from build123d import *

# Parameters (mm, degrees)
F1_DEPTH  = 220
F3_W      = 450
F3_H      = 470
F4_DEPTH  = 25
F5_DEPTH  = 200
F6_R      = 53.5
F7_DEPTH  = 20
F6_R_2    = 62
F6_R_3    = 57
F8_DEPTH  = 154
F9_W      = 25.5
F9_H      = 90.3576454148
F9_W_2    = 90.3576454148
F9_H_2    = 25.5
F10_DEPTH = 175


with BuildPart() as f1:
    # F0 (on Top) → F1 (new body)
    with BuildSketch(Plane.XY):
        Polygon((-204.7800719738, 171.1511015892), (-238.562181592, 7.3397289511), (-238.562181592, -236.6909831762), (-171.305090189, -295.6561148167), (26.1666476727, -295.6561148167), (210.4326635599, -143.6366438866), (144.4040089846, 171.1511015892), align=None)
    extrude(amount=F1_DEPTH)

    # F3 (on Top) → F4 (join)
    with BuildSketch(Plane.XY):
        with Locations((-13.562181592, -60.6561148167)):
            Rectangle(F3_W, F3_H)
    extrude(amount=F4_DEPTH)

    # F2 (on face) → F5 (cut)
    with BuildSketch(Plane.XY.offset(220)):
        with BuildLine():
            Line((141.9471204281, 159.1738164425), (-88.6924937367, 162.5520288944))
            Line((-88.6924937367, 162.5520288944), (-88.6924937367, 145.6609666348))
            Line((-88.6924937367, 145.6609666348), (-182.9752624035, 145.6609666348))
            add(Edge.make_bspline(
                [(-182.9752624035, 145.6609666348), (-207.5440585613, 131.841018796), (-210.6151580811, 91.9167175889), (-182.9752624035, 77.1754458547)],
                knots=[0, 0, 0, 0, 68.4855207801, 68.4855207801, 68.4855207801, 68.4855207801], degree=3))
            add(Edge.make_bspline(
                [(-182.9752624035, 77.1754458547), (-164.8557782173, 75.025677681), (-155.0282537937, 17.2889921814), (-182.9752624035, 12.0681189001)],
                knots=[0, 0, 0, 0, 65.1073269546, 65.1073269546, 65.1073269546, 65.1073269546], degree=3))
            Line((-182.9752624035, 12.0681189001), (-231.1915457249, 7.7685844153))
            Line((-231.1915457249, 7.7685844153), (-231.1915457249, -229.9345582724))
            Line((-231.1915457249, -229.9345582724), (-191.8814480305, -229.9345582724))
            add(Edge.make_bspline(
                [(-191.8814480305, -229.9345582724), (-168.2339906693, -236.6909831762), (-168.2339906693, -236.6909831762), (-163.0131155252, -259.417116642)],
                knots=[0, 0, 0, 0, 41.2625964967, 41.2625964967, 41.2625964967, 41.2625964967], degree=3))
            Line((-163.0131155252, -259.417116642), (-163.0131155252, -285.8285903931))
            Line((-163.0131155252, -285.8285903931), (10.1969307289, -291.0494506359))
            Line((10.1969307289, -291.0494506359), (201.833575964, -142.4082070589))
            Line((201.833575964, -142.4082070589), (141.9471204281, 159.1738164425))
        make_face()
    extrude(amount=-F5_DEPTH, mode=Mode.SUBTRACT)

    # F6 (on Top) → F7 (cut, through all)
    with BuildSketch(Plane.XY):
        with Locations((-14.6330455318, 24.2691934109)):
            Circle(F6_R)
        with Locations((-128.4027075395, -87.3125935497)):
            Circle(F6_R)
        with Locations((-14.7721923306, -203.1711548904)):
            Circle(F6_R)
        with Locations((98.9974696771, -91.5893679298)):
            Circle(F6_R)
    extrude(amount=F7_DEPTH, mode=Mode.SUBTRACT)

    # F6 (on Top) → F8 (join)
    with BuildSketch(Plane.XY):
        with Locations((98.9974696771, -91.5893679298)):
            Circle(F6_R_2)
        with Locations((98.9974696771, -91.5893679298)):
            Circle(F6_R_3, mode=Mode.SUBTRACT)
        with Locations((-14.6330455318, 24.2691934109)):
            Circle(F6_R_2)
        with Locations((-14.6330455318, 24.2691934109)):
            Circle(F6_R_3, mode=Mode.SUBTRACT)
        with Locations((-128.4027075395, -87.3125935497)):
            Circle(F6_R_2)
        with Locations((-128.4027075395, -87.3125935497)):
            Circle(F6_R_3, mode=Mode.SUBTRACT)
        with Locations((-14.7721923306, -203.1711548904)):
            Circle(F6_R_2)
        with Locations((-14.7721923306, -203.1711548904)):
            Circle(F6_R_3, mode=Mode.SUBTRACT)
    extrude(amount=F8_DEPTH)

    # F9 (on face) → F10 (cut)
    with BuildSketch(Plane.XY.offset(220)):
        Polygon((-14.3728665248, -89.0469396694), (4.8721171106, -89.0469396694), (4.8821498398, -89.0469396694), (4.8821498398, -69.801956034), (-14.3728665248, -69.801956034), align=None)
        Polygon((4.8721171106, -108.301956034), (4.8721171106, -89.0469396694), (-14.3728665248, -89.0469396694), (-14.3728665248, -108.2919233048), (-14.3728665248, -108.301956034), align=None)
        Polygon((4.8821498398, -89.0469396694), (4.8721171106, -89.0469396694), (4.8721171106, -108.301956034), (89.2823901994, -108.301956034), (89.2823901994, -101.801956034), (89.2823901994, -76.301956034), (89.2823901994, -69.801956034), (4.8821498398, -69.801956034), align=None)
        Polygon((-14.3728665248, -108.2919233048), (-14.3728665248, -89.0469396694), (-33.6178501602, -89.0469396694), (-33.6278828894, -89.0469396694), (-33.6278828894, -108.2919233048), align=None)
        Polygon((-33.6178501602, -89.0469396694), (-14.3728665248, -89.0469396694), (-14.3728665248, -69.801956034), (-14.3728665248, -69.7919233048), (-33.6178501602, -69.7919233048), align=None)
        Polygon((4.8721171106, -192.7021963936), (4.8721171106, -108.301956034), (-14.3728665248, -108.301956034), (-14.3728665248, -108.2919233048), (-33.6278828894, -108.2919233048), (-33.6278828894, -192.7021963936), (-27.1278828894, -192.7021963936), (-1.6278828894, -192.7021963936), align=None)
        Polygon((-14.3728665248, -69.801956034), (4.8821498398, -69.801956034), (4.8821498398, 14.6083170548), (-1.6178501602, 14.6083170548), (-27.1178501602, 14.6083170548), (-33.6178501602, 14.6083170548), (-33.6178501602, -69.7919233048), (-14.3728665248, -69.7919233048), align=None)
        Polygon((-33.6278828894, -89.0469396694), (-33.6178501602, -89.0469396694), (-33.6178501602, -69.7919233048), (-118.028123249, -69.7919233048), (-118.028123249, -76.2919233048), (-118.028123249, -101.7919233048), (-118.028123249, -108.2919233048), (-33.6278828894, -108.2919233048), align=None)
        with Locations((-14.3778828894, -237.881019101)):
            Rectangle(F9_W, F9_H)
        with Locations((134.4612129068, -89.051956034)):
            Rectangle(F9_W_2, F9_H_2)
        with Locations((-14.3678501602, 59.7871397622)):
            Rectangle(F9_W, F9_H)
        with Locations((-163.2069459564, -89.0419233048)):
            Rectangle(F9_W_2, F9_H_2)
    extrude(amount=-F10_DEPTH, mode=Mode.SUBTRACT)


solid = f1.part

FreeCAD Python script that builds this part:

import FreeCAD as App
import Part
import Sketcher

V = App.Vector
Q = App.Units.Quantity


def add_polygon(sketch, points):
    """Adds a closed chain of lines whose ends are joined by coincident constraints."""
    first, n = sketch.GeometryCount, len(points)
    for a, b in zip(points, points[1:] + points[:1]):
        sketch.addGeometry(Part.LineSegment(App.Vector(*a, 0), App.Vector(*b, 0)), False)
    for i in range(n):
        sketch.addConstraint(Sketcher.Constraint("Coincident", first + i, 2, first + (i + 1) % n, 1))

doc = App.newDocument("Part")
body = doc.addObject("PartDesign::Body", "Body")

# Sketch on XY plane
sketch1 = body.newObject("Sketcher::SketchObject", "Sketch")
sketch1.AttachmentSupport = (doc.getObject("XY_Plane"), [""])
sketch1.MapMode = "FlatFace"
add_polygon(sketch1, [(-204.780072, 171.151102), (-238.562182, 7.339729), (-238.562182, -236.690983), (-171.30509, -295.656115), (26.166648, -295.656115), (210.432664, -143.636644), (144.404009, 171.151102)])  # lines 0-6
sketch1.addConstraint([
    Sketcher.Constraint("Vertical", 1),
    Sketcher.Constraint("Horizontal", 3),
    Sketcher.Constraint("Horizontal", 6),
    Sketcher.Constraint("DistanceX", 6, 2, 6, 1, Q("349.184081 mm")),
    Sketcher.Constraint("DistanceY", -1, 1, 5, 2, Q("171.151102 mm")),
    Sketcher.Constraint("DistanceX", 2, 2, 5, 2, Q("315.709099 mm")),
    Sketcher.Constraint("Distance", 4, Q("238.880481 mm")),
    Sketcher.Constraint("DistanceX", 3, 1, 3, 2, Q("197.471738 mm")),
    Sketcher.Constraint("DistanceY", 1, 2, 1, 1, Q("244.030712 mm")),
    Sketcher.Constraint("DistanceX", 0, 2, -1, 1, Q("238.562182 mm")),
    Sketcher.Constraint("DistanceY", -1, 1, 0, 2, Q("7.339729 mm")),
    Sketcher.Constraint("DistanceX", 2, 2, -1, 1, Q("171.30509 mm")),
    Sketcher.Constraint("DistanceY", 2, 2, 1, 2, Q("58.965132 mm")),
    Sketcher.Constraint("DistanceY", 3, 2, 4, 2, Q("152.019471 mm")),
])
pad1 = body.newObject("PartDesign::Pad", "Pad")
pad1.Profile = sketch1
pad1.Length = 220

# Sketch on XY plane
sketch2 = body.newObject("Sketcher::SketchObject", "Sketch001")
sketch2.AttachmentSupport = (doc.getObject("XY_Plane"), [""])
sketch2.MapMode = "FlatFace"
add_polygon(sketch2, [(-238.562182, 174.343885), (-238.562182, -295.656115), (211.437818, -295.656115), (211.437818, 174.343885)])  # lines 0-3
sketch2.addConstraint([
    Sketcher.Constraint("Vertical", 0),
    Sketcher.Constraint("Horizontal", 1),
    Sketcher.Constraint("Vertical", 2),
    Sketcher.Constraint("Horizontal", 3),
    Sketcher.Constraint("DistanceX", 1, 1, 1, 2, Q("450 mm")),
    Sketcher.Constraint("DistanceY", 0, 2, 0, 1, Q("470 mm")),
    Sketcher.Constraint("DistanceX", 0, 2, -1, 1, Q("238.562182 mm")),
    Sketcher.Constraint("DistanceY", 0, 2, -1, 1, Q("295.656115 mm")),
])
pad2 = body.newObject("PartDesign::Pad", "Pad001")
pad2.Profile = sketch2
pad2.Length = 25

# Sketch on XY plane
sketch3 = body.newObject("Sketcher::SketchObject", "Sketch002")
sketch3.AttachmentSupport = (doc.getObject("XY_Plane"), [""])
sketch3.MapMode = "FlatFace"
sketch3.AttachmentOffset = App.Placement(V(0, 0, 220), App.Rotation())
sketch3.addGeometry([
    Part.LineSegment(V(141.94712, 159.173816, 0), V(-88.692494, 162.552029, 0)),  # 0
    Part.LineSegment(V(-88.692494, 162.552029, 0), V(-88.692494, 145.660967, 0)),  # 1
    Part.LineSegment(V(-88.692494, 145.660967, 0), V(-182.975262, 145.660967, 0)),  # 2
    Part.BSplineCurve([V(-182.975262, 145.660967, 0), V(-207.544059, 131.841019, 0), V(-210.615158, 91.916718, 0), V(-182.975262, 77.175446, 0)], [4, 4], [0, 68.48552078], False, 3, [1, 1, 1, 1], False),  # 3
    Part.BSplineCurve([V(-182.975262, 77.175446, 0), V(-164.855778, 75.025678, 0), V(-155.028254, 17.288992, 0), V(-182.975262, 12.068119, 0)], [4, 4], [0, 65.107326955], False, 3, [1, 1, 1, 1], False),  # 4
    Part.LineSegment(V(-182.975262, 12.068119, 0), V(-231.191546, 7.768584, 0)),  # 5
    Part.LineSegment(V(-231.191546, 7.768584, 0), V(-231.191546, -229.934558, 0)),  # 6
    Part.LineSegment(V(-231.191546, -229.934558, 0), V(-191.881448, -229.934558, 0)),  # 7
    Part.BSplineCurve([V(-191.881448, -229.934558, 0), V(-168.233991, -236.690983, 0), V(-168.233991, -236.690983, 0), V(-163.013116, -259.417117, 0)], [4, 4], [0, 41.262596497], False, 3, [1, 1, 1, 1], False),  # 8
    Part.LineSegment(V(-163.013116, -259.417117, 0), V(-163.013116, -285.82859, 0)),  # 9
    Part.LineSegment(V(-163.013116, -285.82859, 0), V(10.196931, -291.049451, 0)),  # 10
    Part.LineSegment(V(10.196931, -291.049451, 0), V(201.833576, -142.408207, 0)),  # 11
    Part.LineSegment(V(201.833576, -142.408207, 0), V(141.94712, 159.173816, 0)),  # 12
], False)
sketch3.addConstraint([
    Sketcher.Constraint("Block", 3),
    Sketcher.Constraint("Block", 4),
    Sketcher.Constraint("Block", 8),
    Sketcher.Constraint("Coincident", 0, 2, 1, 1),
    Sketcher.Constraint("Coincident", 1, 2, 2, 1),
    Sketcher.Constraint("Coincident", 2, 2, 3, 1),
    Sketcher.Constraint("Coincident", 4, 2, 5, 1),
    Sketcher.Constraint("Coincident", 5, 2, 6, 1),
    Sketcher.Constraint("Coincident", 6, 2, 7, 1),
    Sketcher.Constraint("Coincident", 7, 2, 8, 1),
    Sketcher.Constraint("Coincident", 8, 2, 9, 1),
    Sketcher.Constraint("Coincident", 9, 2, 10, 1),
    Sketcher.Constraint("Coincident", 10, 2, 11, 1),
    Sketcher.Constraint("Coincident", 11, 2, 12, 1),
    Sketcher.Constraint("Coincident", 12, 2, 0, 1),
    Sketcher.Constraint("Vertical", 1),
    Sketcher.Constraint("Horizontal", 2),
    Sketcher.Constraint("Vertical", 6),
    Sketcher.Constraint("Horizontal", 7),
    Sketcher.Constraint("Vertical", 9),
    Sketcher.Constraint("DistanceX", 2, 2, 2, 1, Q("94.282769 mm")),
    Sketcher.Constraint("Distance", 10, Q("173.288711 mm")),
    Sketcher.Constraint("DistanceX", 7, 1, 7, 2, Q("39.310098 mm")),
    Sketcher.Constraint("DistanceY", 1, 2, 1, 1, Q("16.891062 mm")),
    Sketcher.Constraint("DistanceY", 6, 2, 6, 1, Q("237.703143 mm")),
    Sketcher.Constraint("DistanceY", 9, 2, 9, 1, Q("26.411474 mm")),
    Sketcher.Constraint("DistanceX", -1, 1, 10, 2, Q("10.196931 mm")),
    Sketcher.Constraint("DistanceX", -1, 1, 12, 2, Q("141.94712 mm")),
    Sketcher.Constraint("DistanceX", 9, 2, 11, 2, Q("364.846691 mm")),
    Sketcher.Constraint("DistanceY", 7, 2, 11, 2, Q("87.526351 mm")),
    Sketcher.Constraint("DistanceY", 1, 2, 12, 2, Q("13.51285 mm")),
])
pocket1 = body.newObject("PartDesign::Pocket", "Pocket")
pocket1.Profile = sketch3
pocket1.Length = 200

# Sketch on XY plane
sketch4 = body.newObject("Sketcher::SketchObject", "Sketch003")
sketch4.AttachmentSupport = (doc.getObject("XY_Plane"), [""])
sketch4.MapMode = "FlatFace"
sketch4.addGeometry([
    Part.Circle(V(-14.633046, 24.269193, 0), V(0, 0, 1), 53.5),
    Part.Circle(V(-128.402708, -87.312594, 0), V(0, 0, 1), 53.5),
    Part.Circle(V(-14.772192, -203.171155, 0), V(0, 0, 1), 53.5),
    Part.Circle(V(98.99747, -91.589368, 0), V(0, 0, 1), 53.5),
], False)
sketch4.addConstraint([
    Sketcher.Constraint("Equal", 0, 1),
    Sketcher.Constraint("Equal", 1, 2),
    Sketcher.Constraint("Equal", 2, 3),
    Sketcher.Constraint("Diameter", 0, Q("107 mm")),
    Sketcher.Constraint("DistanceX", -1, 1, 3, 3, Q("98.99747 mm")),
    Sketcher.Constraint("DistanceY", 2, 3, 1, 3, Q("115.858561 mm")),
    Sketcher.Constraint("DistanceY", 2, 3, 0, 3, Q("227.440348 mm")),
    Sketcher.Constraint("DistanceY", 3, 3, 0, 3, Q("115.858561 mm")),
    Sketcher.Constraint("DistanceX", 0, 3, -1, 1, Q("14.633046 mm")),
    Sketcher.Constraint("DistanceY", -1, 1, 0, 3, Q("24.269193 mm")),
    Sketcher.Constraint("DistanceX", 1, 3, -1, 1, Q("128.402708 mm")),
    Sketcher.Constraint("DistanceX", 2, 3, -1, 1, Q("14.772192 mm")),
])
pocket2 = body.newObject("PartDesign::Pocket", "Pocket001")
pocket2.Profile = sketch4
pocket2.Type = "ThroughAll"
pocket2.Reversed = True

# Sketch on XY plane
sketch5 = body.newObject("Sketcher::SketchObject", "Sketch004")
sketch5.AttachmentSupport = (doc.getObject("XY_Plane"), [""])
sketch5.MapMode = "FlatFace"
sketch5.addGeometry([
    Part.Circle(V(98.99747, -91.589368, 0), V(0, 0, 1), 62),  # 0
    Part.Circle(V(98.99747, -91.589368, 0), V(0, 0, 1), 57),  # 1
    Part.Circle(V(-14.633046, 24.269193, 0), V(0, 0, 1), 62),  # 2
    Part.Circle(V(-14.633046, 24.269193, 0), V(0, 0, 1), 57),  # 3
    Part.Circle(V(-128.402708, -87.312594, 0), V(0, 0, 1), 62),  # 4
    Part.Circle(V(-128.402708, -87.312594, 0), V(0, 0, 1), 57),  # 5
    Part.Circle(V(-14.772192, -203.171155, 0), V(0, 0, 1), 62),  # 6
    Part.Circle(V(-14.772192, -203.171155, 0), V(0, 0, 1), 57),  # 7
], False)
sketch5.addConstraint([
    Sketcher.Constraint("Coincident", 1, 3, 0, 3),
    Sketcher.Constraint("Coincident", 3, 3, 2, 3),
    Sketcher.Constraint("Coincident", 5, 3, 4, 3),
    Sketcher.Constraint("Coincident", 7, 3, 6, 3),
    Sketcher.Constraint("Equal", 0, 2),
    Sketcher.Constraint("Equal", 1, 3),
    Sketcher.Constraint("Equal", 2, 4),
    Sketcher.Constraint("Equal", 3, 5),
    Sketcher.Constraint("Equal", 4, 6),
    Sketcher.Constraint("Equal", 5, 7),
    Sketcher.Constraint("Diameter", 0, Q("124 mm")),
    Sketcher.Constraint("Diameter", 1, Q("114 mm")),
    Sketcher.Constraint("DistanceX", -1, 1, 0, 3, Q("98.99747 mm")),
    Sketcher.Constraint("DistanceY", 0, 3, 2, 3, Q("115.858561 mm")),
    Sketcher.Constraint("DistanceY", 6, 3, 4, 3, Q("115.858561 mm")),
    Sketcher.Constraint("DistanceY", 6, 3, 2, 3, Q("227.440348 mm")),
    Sketcher.Constraint("DistanceY", 0, 3, -1, 1, Q("91.589368 mm")),
    Sketcher.Constraint("DistanceX", 2, 3, -1, 1, Q("14.633046 mm")),
    Sketcher.Constraint("DistanceX", 4, 3, -1, 1, Q("128.402708 mm")),
    Sketcher.Constraint("DistanceX", 6, 3, -1, 1, Q("14.772192 mm")),
])
pad3 = body.newObject("PartDesign::Pad", "Pad002")
pad3.Profile = sketch5
pad3.Length = 154

# Sketch on XY plane
sketch6 = body.newObject("Sketcher::SketchObject", "Sketch005")
sketch6.AttachmentSupport = (doc.getObject("XY_Plane"), [""])
sketch6.MapMode = "FlatFace"
sketch6.AttachmentOffset = App.Placement(V(0, 0, 220), App.Rotation())
add_polygon(sketch6, [(-33.627883, -108.291923), (-33.627883, -192.702196), (-27.127883, -192.702196), (-27.127883, -283.059842), (-1.627883, -283.059842), (-1.627883, -192.702196), (4.872117, -192.702196), (4.872117, -108.301956), (89.28239, -108.301956), (89.28239, -101.801956), (179.640036, -101.801956), (179.640036, -76.301956), (89.28239, -76.301956), (89.28239, -69.801956), (4.88215, -69.801956), (4.88215, 14.608317), (-1.61785, 14.608317), (-1.61785, 104.965962), (-27.11785, 104.965962), (-27.11785, 14.608317), (-33.61785, 14.608317), (-33.61785, -69.791923), (-118.028123, -69.791923), (-118.028123, -76.291923), (-208.385769, -76.291923), (-208.385769, -101.791923), (-118.028123, -101.791923), (-118.028123, -108.291923)])  # lines 0-27
sketch6.addConstraint([
    Sketcher.Constraint("Vertical", 0),
    Sketcher.Constraint("Horizontal", 1),
    Sketcher.Constraint("Vertical", 2),
    Sketcher.Constraint("Horizontal", 3),
    Sketcher.Constraint("Vertical", 4),
    Sketcher.Constraint("Horizontal", 5),
    Sketcher.Constraint("Vertical", 6),
    Sketcher.Constraint("Horizontal", 7),
    Sketcher.Constraint("Vertical", 8),
    Sketcher.Constraint("Horizontal", 9),
    Sketcher.Constraint("Vertical", 10),
    Sketcher.Constraint("Horizontal", 11),
    Sketcher.Constraint("Vertical", 12),
    Sketcher.Constraint("Horizontal", 13),
    Sketcher.Constraint("Vertical", 14),
    Sketcher.Constraint("Horizontal", 15),
    Sketcher.Constraint("Vertical", 16),
    Sketcher.Constraint("Horizontal", 17),
    Sketcher.Constraint("Vertical", 18),
    Sketcher.Constraint("Horizontal", 19),
    Sketcher.Constraint("Vertical", 20),
    Sketcher.Constraint("Horizontal", 21),
    Sketcher.Constraint("Vertical", 22),
    Sketcher.Constraint("Horizontal", 23),
    Sketcher.Constraint("Vertical", 24),
    Sketcher.Constraint("Horizontal", 25),
    Sketcher.Constraint("Vertical", 26),
    Sketcher.Constraint("Horizontal", 27),
    Sketcher.Constraint("Horizontal", 1, 2, 4, 2),
    Sketcher.Constraint("Horizontal", 15, 2, 18, 2),
    Sketcher.Constraint("Vertical", 8, 2, 11, 2),
    Sketcher.Constraint("Vertical", 22, 2, 25, 2),
    Sketcher.Constraint("Equal", 1, 5),
    Sketcher.Constraint("Equal", 5, 15),
    Sketcher.Constraint("Equal", 3, 17),
    Sketcher.Constraint("Equal", 15, 19),
    Sketcher.Constraint("Equal", 7, 21),
    Sketcher.Constraint("Equal", 11, 23),
    Sketcher.Constraint("Equal", 21, 0),
    Sketcher.Constraint("Equal", 25, 2),
    Sketcher.Constraint("Equal", 27, 6),
    Sketcher.Constraint("Equal", 19, 8),
    Sketcher.Constraint("Equal", 17, 10),
    Sketcher.Constraint("Equal", 8, 12),
    Sketcher.Constraint("Equal", 0, 14),
    Sketcher.Constraint("Equal", 4, 16),
    Sketcher.Constraint("Equal", 6, 20),
    Sketcher.Constraint("Equal", 12, 22),
    Sketcher.Constraint("Equal", 10, 24),
    Sketcher.Constraint("DistanceX", 1, 1, 1, 2, Q("6.5 mm")),
    Sketcher.Constraint("DistanceX", 3, 1, 3, 2, Q("25.5 mm")),
    Sketcher.Constraint("DistanceX", 13, 2, 13, 1, Q("84.40024 mm")),
    Sketcher.Constraint("DistanceX", 7, 1, 7, 2, Q("84.410273 mm")),
    Sketcher.Constraint("DistanceX", 9, 1, 9, 2, Q("90.357645 mm")),
    Sketcher.Constraint("DistanceY", 2, 2, -1, 1, Q("283.059842 mm")),
    Sketcher.Constraint("DistanceX", -1, 1, 7, 2, Q("89.28239 mm")),
])
pocket3 = body.newObject("PartDesign::Pocket", "Pocket002")
pocket3.Profile = sketch6
pocket3.Length = 175

doc.recompute()
